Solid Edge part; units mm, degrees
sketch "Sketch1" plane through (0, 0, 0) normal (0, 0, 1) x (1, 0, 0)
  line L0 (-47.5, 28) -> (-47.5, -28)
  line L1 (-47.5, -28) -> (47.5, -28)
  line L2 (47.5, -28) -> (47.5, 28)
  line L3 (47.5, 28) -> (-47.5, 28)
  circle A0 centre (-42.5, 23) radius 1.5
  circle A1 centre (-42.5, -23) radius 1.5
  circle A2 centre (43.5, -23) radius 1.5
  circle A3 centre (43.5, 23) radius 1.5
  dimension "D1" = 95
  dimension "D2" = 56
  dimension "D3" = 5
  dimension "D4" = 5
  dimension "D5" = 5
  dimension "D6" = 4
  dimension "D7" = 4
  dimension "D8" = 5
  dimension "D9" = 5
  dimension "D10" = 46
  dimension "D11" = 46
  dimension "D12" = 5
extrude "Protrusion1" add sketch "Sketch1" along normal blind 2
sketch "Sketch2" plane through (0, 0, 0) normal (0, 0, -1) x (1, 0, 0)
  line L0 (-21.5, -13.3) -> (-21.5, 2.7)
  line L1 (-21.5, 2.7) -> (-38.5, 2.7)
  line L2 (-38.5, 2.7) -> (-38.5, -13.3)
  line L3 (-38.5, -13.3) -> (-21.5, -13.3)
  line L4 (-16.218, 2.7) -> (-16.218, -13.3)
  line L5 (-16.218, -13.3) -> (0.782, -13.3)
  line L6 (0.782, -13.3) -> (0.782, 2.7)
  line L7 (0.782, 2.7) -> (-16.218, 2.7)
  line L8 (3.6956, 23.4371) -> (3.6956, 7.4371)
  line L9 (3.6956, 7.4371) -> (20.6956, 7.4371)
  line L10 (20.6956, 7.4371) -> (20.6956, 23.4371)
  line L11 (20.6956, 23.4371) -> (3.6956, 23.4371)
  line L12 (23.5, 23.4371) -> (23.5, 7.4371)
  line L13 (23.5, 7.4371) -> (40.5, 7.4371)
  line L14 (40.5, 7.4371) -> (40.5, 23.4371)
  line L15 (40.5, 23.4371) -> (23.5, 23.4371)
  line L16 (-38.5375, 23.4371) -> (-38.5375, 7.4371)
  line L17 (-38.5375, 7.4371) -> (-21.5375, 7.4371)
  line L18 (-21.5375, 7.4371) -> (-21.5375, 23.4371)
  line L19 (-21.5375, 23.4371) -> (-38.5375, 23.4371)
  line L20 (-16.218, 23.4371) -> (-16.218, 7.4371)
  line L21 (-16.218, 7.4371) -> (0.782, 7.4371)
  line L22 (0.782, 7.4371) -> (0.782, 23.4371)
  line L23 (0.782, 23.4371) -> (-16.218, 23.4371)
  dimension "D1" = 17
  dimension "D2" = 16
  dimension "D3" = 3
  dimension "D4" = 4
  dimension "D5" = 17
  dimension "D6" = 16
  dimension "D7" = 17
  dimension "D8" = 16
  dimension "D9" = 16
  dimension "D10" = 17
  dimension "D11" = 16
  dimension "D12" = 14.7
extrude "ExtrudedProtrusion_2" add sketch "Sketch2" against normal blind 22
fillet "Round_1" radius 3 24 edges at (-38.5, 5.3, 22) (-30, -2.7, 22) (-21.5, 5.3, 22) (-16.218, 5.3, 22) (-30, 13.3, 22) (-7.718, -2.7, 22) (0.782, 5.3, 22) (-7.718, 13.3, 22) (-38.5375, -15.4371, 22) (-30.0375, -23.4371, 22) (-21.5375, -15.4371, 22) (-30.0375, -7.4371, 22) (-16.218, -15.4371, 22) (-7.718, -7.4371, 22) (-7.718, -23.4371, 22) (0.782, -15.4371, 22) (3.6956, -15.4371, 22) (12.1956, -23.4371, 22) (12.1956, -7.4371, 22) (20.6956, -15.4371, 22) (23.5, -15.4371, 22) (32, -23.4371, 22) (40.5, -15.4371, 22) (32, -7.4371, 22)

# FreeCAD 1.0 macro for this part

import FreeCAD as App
import Part
import Sketcher

V = App.Vector


def edges_at(feature, points):
    """Names of the edges that pass closest to the given points."""
    edges = feature.Shape.Edges
    near = lambda p: min(range(len(edges)), key=lambda i: edges[i].distToShape(Part.Vertex(*p))[0])
    return sorted({f"Edge{near(p) + 1}" for p in points})

doc = App.newDocument("Part")
body = doc.addObject("PartDesign::Body", "Body")

# Sketch on XY plane
sketch1 = body.newObject("Sketcher::SketchObject", "Sketch")
sketch1.AttachmentSupport = (doc.getObject("XY_Plane"), [""])
sketch1.MapMode = "FlatFace"
sketch1.addGeometry(Part.LineSegment(V(47.5, 28, 0), V(-47.5, 28, 0)), False)
sketch1.addGeometry(Part.LineSegment(V(-47.5, 28, 0), V(-47.5, -28, 0)), False)
sketch1.addGeometry(Part.LineSegment(V(-47.5, -28, 0), V(47.5, -28, 0)), False)
sketch1.addGeometry(Part.LineSegment(V(47.5, -28, 0), V(47.5, 28, 0)), False)
sketch1.addGeometry(Part.Circle(V(-42.5, -23, 0), V(0, 0, 1), 1.5), False)
sketch1.addGeometry(Part.Circle(V(43.5, -23, 0), V(0, 0, 1), 1.5), False)
sketch1.addGeometry(Part.Circle(V(-42.5, 23, 0), V(0, 0, 1), 1.5), False)
sketch1.addGeometry(Part.Circle(V(43.5, 23, 0), V(0, 0, 1), 1.5), False)
sketch1.addConstraint(Sketcher.Constraint("Coincident", 0, 2, 1, 1))
sketch1.addConstraint(Sketcher.Constraint("Coincident", 1, 2, 2, 1))
sketch1.addConstraint(Sketcher.Constraint("Coincident", 2, 2, 3, 1))
sketch1.addConstraint(Sketcher.Constraint("Coincident", 3, 2, 0, 1))
sketch1.addConstraint(Sketcher.Constraint("Horizontal", 0))
sketch1.addConstraint(Sketcher.Constraint("Vertical", 1))
sketch1.addConstraint(Sketcher.Constraint("Horizontal", 2))
sketch1.addConstraint(Sketcher.Constraint("Vertical", 3))
sketch1.addConstraint(Sketcher.Constraint("Equal", 4, 5))
sketch1.addConstraint(Sketcher.Constraint("Equal", 5, 6))
sketch1.addConstraint(Sketcher.Constraint("Equal", 6, 7))
sketch1.addConstraint(Sketcher.Constraint("Symmetric", 0, 2, 2, 2, -1, 1))
sketch1.addConstraint(Sketcher.Constraint("Symmetric", 4, 3, 6, 3, -1))
sketch1.addConstraint(Sketcher.Constraint("Symmetric", 5, 3, 7, 3, -1))
sketch1.addConstraint(Sketcher.Constraint("Horizontal", 4, 3, 5, 3))
sketch1.addConstraint(Sketcher.Constraint("Diameter", 4, 3.0))
sketch1.addConstraint(Sketcher.Constraint("DistanceX", 0, 2, 0, 1, 95.0))
sketch1.addConstraint(Sketcher.Constraint("DistanceY", 1, 2, 1, 1, 56.0))
sketch1.addConstraint(Sketcher.Constraint("DistanceY", 4, 3, -1, 1, 23.0))
sketch1.addConstraint(Sketcher.Constraint("DistanceX", 4, 3, 5, 3, 86.0))
sketch1.addConstraint(Sketcher.Constraint("DistanceX", 0, 2, 6, 3, 5.0))
pad1 = body.newObject("PartDesign::Pad", "Pad")
pad1.Profile = sketch1
pad1.Length = 2

# Sketch on XY plane
sketch2 = body.newObject("Sketcher::SketchObject", "Sketch001")
sketch2.AttachmentSupport = (doc.getObject("XY_Plane"), [""])
sketch2.MapMode = "FlatFace"
sketch2.addGeometry(Part.LineSegment(V(-38.5, 13.3, 0), V(-21.5, 13.3, 0)), False)
sketch2.addGeometry(Part.LineSegment(V(-21.5, 13.3, 0), V(-21.5, -2.7, 0)), False)
sketch2.addGeometry(Part.LineSegment(V(-21.5, -2.7, 0), V(-38.5, -2.7, 0)), False)
sketch2.addGeometry(Part.LineSegment(V(-38.5, -2.7, 0), V(-38.5, 13.3, 0)), False)
sketch2.addGeometry(Part.LineSegment(V(0.782, -2.7, 0), V(-16.218, -2.7, 0)), False)
sketch2.addGeometry(Part.LineSegment(V(-16.218, -2.7, 0), V(-16.218, 13.3, 0)), False)
sketch2.addGeometry(Part.LineSegment(V(-16.218, 13.3, 0), V(0.782, 13.3, 0)), False)
sketch2.addGeometry(Part.LineSegment(V(0.782, 13.3, 0), V(0.782, -2.7, 0)), False)
sketch2.addGeometry(Part.LineSegment(V(20.6956, -23.4371, 0), V(3.6956, -23.4371, 0)), False)
sketch2.addGeometry(Part.LineSegment(V(3.6956, -23.4371, 0), V(3.6956, -7.4371, 0)), False)
sketch2.addGeometry(Part.LineSegment(V(3.6956, -7.4371, 0), V(20.6956, -7.4371, 0)), False)
sketch2.addGeometry(Part.LineSegment(V(20.6956, -7.4371, 0), V(20.6956, -23.4371, 0)), False)
sketch2.addGeometry(Part.LineSegment(V(40.5, -23.4371, 0), V(23.5, -23.4371, 0)), False)
sketch2.addGeometry(Part.LineSegment(V(23.5, -23.4371, 0), V(23.5, -7.4371, 0)), False)
sketch2.addGeometry(Part.LineSegment(V(23.5, -7.4371, 0), V(40.5, -7.4371, 0)), False)
sketch2.addGeometry(Part.LineSegment(V(40.5, -7.4371, 0), V(40.5, -23.4371, 0)), False)
sketch2.addGeometry(Part.LineSegment(V(-21.5375, -23.4371, 0), V(-38.5375, -23.4371, 0)), False)
sketch2.addGeometry(Part.LineSegment(V(-38.5375, -23.4371, 0), V(-38.5375, -7.4371, 0)), False)
sketch2.addGeometry(Part.LineSegment(V(-38.5375, -7.4371, 0), V(-21.5375, -7.4371, 0)), False)
sketch2.addGeometry(Part.LineSegment(V(-21.5375, -7.4371, 0), V(-21.5375, -23.4371, 0)), False)
sketch2.addGeometry(Part.LineSegment(V(0.782, -23.4371, 0), V(-16.218, -23.4371, 0)), False)
sketch2.addGeometry(Part.LineSegment(V(-16.218, -23.4371, 0), V(-16.218, -7.4371, 0)), False)
sketch2.addGeometry(Part.LineSegment(V(-16.218, -7.4371, 0), V(0.782, -7.4371, 0)), False)
sketch2.addGeometry(Part.LineSegment(V(0.782, -7.4371, 0), V(0.782, -23.4371, 0)), False)
sketch2.addConstraint(Sketcher.Constraint("Coincident", 0, 2, 1, 1))
sketch2.addConstraint(Sketcher.Constraint("Coincident", 1, 2, 2, 1))
sketch2.addConstraint(Sketcher.Constraint("Coincident", 2, 2, 3, 1))
sketch2.addConstraint(Sketcher.Constraint("Coincident", 3, 2, 0, 1))
sketch2.addConstraint(Sketcher.Constraint("Coincident", 4, 2, 5, 1))
sketch2.addConstraint(Sketcher.Constraint("Coincident", 5, 2, 6, 1))
sketch2.addConstraint(Sketcher.Constraint("Coincident", 6, 2, 7, 1))
sketch2.addConstraint(Sketcher.Constraint("Coincident", 7, 2, 4, 1))
sketch2.addConstraint(Sketcher.Constraint("Coincident", 8, 2, 9, 1))
sketch2.addConstraint(Sketcher.Constraint("Coincident", 9, 2, 10, 1))
sketch2.addConstraint(Sketcher.Constraint("Coincident", 10, 2, 11, 1))
sketch2.addConstraint(Sketcher.Constraint("Coincident", 11, 2, 8, 1))
sketch2.addConstraint(Sketcher.Constraint("Coincident", 12, 2, 13, 1))
sketch2.addConstraint(Sketcher.Constraint("Coincident", 13, 2, 14, 1))
sketch2.addConstraint(Sketcher.Constraint("Coincident", 14, 2, 15, 1))
sketch2.addConstraint(Sketcher.Constraint("Coincident", 15, 2, 12, 1))
sketch2.addConstraint(Sketcher.Constraint("Coincident", 16, 2, 17, 1))
sketch2.addConstraint(Sketcher.Constraint("Coincident", 17, 2, 18, 1))
sketch2.addConstraint(Sketcher.Constraint("Coincident", 18, 2, 19, 1))
sketch2.addConstraint(Sketcher.Constraint("Coincident", 19, 2, 16, 1))
sketch2.addConstraint(Sketcher.Constraint("Coincident", 20, 2, 21, 1))
sketch2.addConstraint(Sketcher.Constraint("Coincident", 21, 2, 22, 1))
sketch2.addConstraint(Sketcher.Constraint("Coincident", 22, 2, 23, 1))
sketch2.addConstraint(Sketcher.Constraint("Coincident", 23, 2, 20, 1))
sketch2.addConstraint(Sketcher.Constraint("Horizontal", 0))
sketch2.addConstraint(Sketcher.Constraint("Vertical", 1))
sketch2.addConstraint(Sketcher.Constraint("Horizontal", 2))
sketch2.addConstraint(Sketcher.Constraint("Vertical", 3))
sketch2.addConstraint(Sketcher.Constraint("Horizontal", 4))
sketch2.addConstraint(Sketcher.Constraint("Vertical", 5))
sketch2.addConstraint(Sketcher.Constraint("Horizontal", 6))
sketch2.addConstraint(Sketcher.Constraint("Vertical", 7))
sketch2.addConstraint(Sketcher.Constraint("Horizontal", 8))
sketch2.addConstraint(Sketcher.Constraint("Vertical", 9))
sketch2.addConstraint(Sketcher.Constraint("Horizontal", 10))
sketch2.addConstraint(Sketcher.Constraint("Vertical", 11))
sketch2.addConstraint(Sketcher.Constraint("Horizontal", 12))
sketch2.addConstraint(Sketcher.Constraint("Vertical", 13))
sketch2.addConstraint(Sketcher.Constraint("Horizontal", 14))
sketch2.addConstraint(Sketcher.Constraint("Vertical", 15))
sketch2.addConstraint(Sketcher.Constraint("Horizontal", 16))
sketch2.addConstraint(Sketcher.Constraint("Vertical", 17))
sketch2.addConstraint(Sketcher.Constraint("Horizontal", 18))
sketch2.addConstraint(Sketcher.Constraint("Vertical", 19))
sketch2.addConstraint(Sketcher.Constraint("Horizontal", 20))
sketch2.addConstraint(Sketcher.Constraint("Vertical", 21))
sketch2.addConstraint(Sketcher.Constraint("Horizontal", 22))
sketch2.addConstraint(Sketcher.Constraint("Vertical", 23))
sketch2.addConstraint(Sketcher.Constraint("Horizontal", 2, 2, 4, 2))
sketch2.addConstraint(Sketcher.Constraint("Horizontal", 3, 2, 5, 2))
sketch2.addConstraint(Sketcher.Constraint("Horizontal", 11, 2, 12, 2))
sketch2.addConstraint(Sketcher.Constraint("Horizontal", 10, 2, 13, 2))
sketch2.addConstraint(Sketcher.Constraint("Horizontal", 15, 2, 16, 2))
sketch2.addConstraint(Sketcher.Constraint("Horizontal", 14, 2, 17, 2))
sketch2.addConstraint(Sketcher.Constraint("Horizontal", 19, 2, 20, 2))
sketch2.addConstraint(Sketcher.Constraint("Horizontal", 18, 2, 21, 2))
sketch2.addConstraint(Sketcher.Constraint("Vertical", 5, 2, 20, 2))
sketch2.addConstraint(Sketcher.Constraint("Vertical", 7, 2, 22, 2))
sketch2.addConstraint(Sketcher.Constraint("Equal", 2, 4))
sketch2.addConstraint(Sketcher.Constraint("Equal", 6, 8))
sketch2.addConstraint(Sketcher.Constraint("Equal", 10, 12))
sketch2.addConstraint(Sketcher.Constraint("Equal", 14, 16))
sketch2.addConstraint(Sketcher.Constraint("Equal", 7, 9))
sketch2.addConstraint(Sketcher.Constraint("DistanceX", 0, 1, 0, 2, 17.0))
sketch2.addConstraint(Sketcher.Constraint("DistanceY", 1, 2, 1, 1, 16.0))
sketch2.addConstraint(Sketcher.Constraint("DistanceX", 0, 2, -1, 1, 21.5))
sketch2.addConstraint(Sketcher.Constraint("DistanceY", -1, 1, 0, 2, 13.3))
sketch2.addConstraint(Sketcher.Constraint("DistanceX", -1, 1, 12, 2, 23.5))
sketch2.addConstraint(Sketcher.Constraint("DistanceX", 4, 2, -1, 1, 16.218))
sketch2.addConstraint(Sketcher.Constraint("DistanceY", 8, 2, -1, 1, 23.437))
sketch2.addConstraint(Sketcher.Constraint("DistanceX", -1, 1, 8, 2, 3.6956))
sketch2.addConstraint(Sketcher.Constraint("DistanceX", 16, 2, -1, 1, 38.5375))
pad2 = body.newObject("PartDesign::Pad", "Pad001")
pad2.Profile = sketch2
pad2.Length = 22
doc.recompute()

fillet = body.newObject("PartDesign::Fillet", "Fillet")
fillet.Base = (pad2, edges_at(pad2, [
    (-38.5, 5.3, 22),
    (-30, -2.7, 22),
    (-21.5, 5.3, 22),
    (-16.218, 5.3, 22),
    (-30, 13.3, 22),
    (-7.718, -2.7, 22),
    (0.782, 5.3, 22),
    (-7.718, 13.3, 22),
    (-38.538, -15.437, 22),
    (-30.038, -23.437, 22),
    (-21.538, -15.437, 22),
    (-30.038, -7.437, 22),
    (-16.218, -15.437, 22),
    (-7.718, -7.437, 22),
    (-7.718, -23.437, 22),
    (0.782, -15.437, 22),
    (3.696, -15.437, 22),
    (12.196, -23.437, 22),
    (12.196, -7.437, 22),
    (20.696, -15.437, 22),
    (23.5, -15.437, 22),
    (32, -23.437, 22),
    (40.5, -15.437, 22),
    (32, -7.437, 22),
]))
fillet.Radius = 3

doc.recompute()
